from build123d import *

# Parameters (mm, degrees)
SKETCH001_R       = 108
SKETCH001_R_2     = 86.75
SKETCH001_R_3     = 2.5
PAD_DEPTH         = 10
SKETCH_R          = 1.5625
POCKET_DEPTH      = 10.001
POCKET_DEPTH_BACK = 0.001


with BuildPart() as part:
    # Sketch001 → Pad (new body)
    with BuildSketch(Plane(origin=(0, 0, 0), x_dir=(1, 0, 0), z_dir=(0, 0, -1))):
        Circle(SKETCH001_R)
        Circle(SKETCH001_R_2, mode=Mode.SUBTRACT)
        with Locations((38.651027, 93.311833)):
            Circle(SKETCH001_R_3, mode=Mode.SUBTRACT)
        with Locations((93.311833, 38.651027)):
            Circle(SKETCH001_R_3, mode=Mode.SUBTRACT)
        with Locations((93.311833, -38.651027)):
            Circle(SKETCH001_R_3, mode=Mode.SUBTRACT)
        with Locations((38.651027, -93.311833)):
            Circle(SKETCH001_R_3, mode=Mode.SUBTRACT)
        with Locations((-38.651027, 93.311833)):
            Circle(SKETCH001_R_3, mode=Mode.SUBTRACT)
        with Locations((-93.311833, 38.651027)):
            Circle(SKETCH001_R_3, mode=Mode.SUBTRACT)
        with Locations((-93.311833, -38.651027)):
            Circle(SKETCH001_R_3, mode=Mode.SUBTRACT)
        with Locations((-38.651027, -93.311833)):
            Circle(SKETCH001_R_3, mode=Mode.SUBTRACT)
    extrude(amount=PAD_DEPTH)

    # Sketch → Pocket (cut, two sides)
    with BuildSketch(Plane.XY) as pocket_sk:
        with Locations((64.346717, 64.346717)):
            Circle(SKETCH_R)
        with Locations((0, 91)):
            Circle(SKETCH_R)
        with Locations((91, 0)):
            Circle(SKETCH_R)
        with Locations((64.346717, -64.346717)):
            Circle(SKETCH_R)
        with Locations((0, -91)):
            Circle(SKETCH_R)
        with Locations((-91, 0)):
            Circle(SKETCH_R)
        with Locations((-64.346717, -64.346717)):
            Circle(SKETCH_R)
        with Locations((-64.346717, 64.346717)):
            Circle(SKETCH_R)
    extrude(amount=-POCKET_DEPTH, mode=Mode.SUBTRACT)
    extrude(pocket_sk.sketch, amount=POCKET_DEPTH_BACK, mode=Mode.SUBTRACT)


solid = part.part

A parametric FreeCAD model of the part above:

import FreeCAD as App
import Part
import Sketcher
from FreeCAD import Vector
Q = App.Units.Quantity

doc = App.newDocument("Part")
params = doc.addObject("Spreadsheet::Sheet", "Params")
for row, (alias, value) in enumerate([
    ("sketch1_diameter", "216 mm"),
    ("sketch1_diameter2", "5 mm"),
    ("sketch1_diameter3", "173.5 mm"),
    ("pad1_length", "10 mm"),
], start=1):
    params.set(f"A{row}", alias)
    params.set(f"B{row}", "=" + value)
    params.setAlias(f"B{row}", alias)

body = doc.addObject("PartDesign::Body", "Body")

sketch1 = body.newObject("Sketcher::SketchObject", "Sketch")
sketch1.AttachmentSupport = (doc.getObject("XY_Plane"), [""])
sketch1.MapMode = "FlatFace"
sketch1.addGeometry(Part.Circle(Vector(0, 0, 0), Vector(0, 0, 1), 108), False)
sketch1.addGeometry(Part.Circle(Vector(-38.651027, 93.311833, 0), Vector(0, 0, 1), 2.5), False)
sketch1.addGeometry(Part.Circle(Vector(-93.311833, 38.651027, 0), Vector(0, 0, 1), 2.5), False)
sketch1.addGeometry(Part.Circle(Vector(0, 0, 0), Vector(0, 0, 1), 86.75), False)
sketch1.addGeometry(Part.Circle(Vector(38.651027, 93.311833, 0), Vector(0, 0, 1), 2.5), False)
sketch1.addGeometry(Part.Circle(Vector(93.311833, 38.651027, 0), Vector(0, 0, 1), 2.5), False)
sketch1.addGeometry(Part.Circle(Vector(-93.311833, -38.651027, 0), Vector(0, 0, 1), 2.5), False)
sketch1.addGeometry(Part.Circle(Vector(-38.651027, -93.311833, 0), Vector(0, 0, 1), 2.5), False)
sketch1.addGeometry(Part.Circle(Vector(93.311833, -38.651027, 0), Vector(0, 0, 1), 2.5), False)
sketch1.addGeometry(Part.Circle(Vector(38.651027, -93.311833, 0), Vector(0, 0, 1), 2.5), False)
sketch1.addConstraint(Sketcher.Constraint("Coincident", 0, 3, -1, 1))
sketch1.addConstraint(Sketcher.Constraint("Coincident", 3, 3, -1, 1))
sketch1.addConstraint(Sketcher.Constraint("Equal", 1, 2))
sketch1.addConstraint(Sketcher.Constraint("Equal", 2, 4))
sketch1.addConstraint(Sketcher.Constraint("Equal", 4, 5))
sketch1.addConstraint(Sketcher.Constraint("Equal", 5, 6))
sketch1.addConstraint(Sketcher.Constraint("Equal", 6, 7))
sketch1.addConstraint(Sketcher.Constraint("Equal", 7, 8))
sketch1.addConstraint(Sketcher.Constraint("Equal", 8, 9))
sketch1.addConstraint(Sketcher.Constraint("Symmetric", 5, 3, 6, 3, -1, 1))
sketch1.addConstraint(Sketcher.Constraint("Symmetric", 4, 3, 7, 3, -1, 1))
sketch1.addConstraint(Sketcher.Constraint("Symmetric", 2, 3, 8, 3, -1, 1))
sketch1.addConstraint(Sketcher.Constraint("Symmetric", 1, 3, 9, 3, -1, 1))
sketch1.addConstraint(Sketcher.Constraint("Symmetric", 1, 3, 4, 3, -2))
sketch1.addConstraint(Sketcher.Constraint("Symmetric", 2, 3, 5, 3, -2))
sketch1.addConstraint(Sketcher.Constraint("Diameter", 0, Q("216 mm")))
sketch1.addConstraint(Sketcher.Constraint("Diameter", 1, Q("5 mm")))
sketch1.addConstraint(Sketcher.Constraint("Diameter", 3, Q("173.5 mm")))
sketch1.addConstraint(Sketcher.Constraint("DistanceX", 2, 3, 4, 3, Q("131.96286 mm")))
sketch1.addConstraint(Sketcher.Constraint("DistanceY", 6, 3, 1, 3, Q("131.96286 mm")))
sketch1.addConstraint(Sketcher.Constraint("DistanceX", 1, 3, -1, 1, Q("38.651027 mm")))
sketch1.addConstraint(Sketcher.Constraint("DistanceY", -1, 1, 1, 3, Q("93.311833 mm")))
sketch1.setExpression("Constraints[15]", "Params.sketch1_diameter")
sketch1.setExpression("Constraints[16]", "Params.sketch1_diameter2")
sketch1.setExpression("Constraints[17]", "Params.sketch1_diameter3")
pad1 = body.newObject("PartDesign::Pad", "Pad")
pad1.Profile = sketch1
pad1.setExpression("Length", "Params.pad1_length")
pad1.Reversed = True

sketch2 = body.newObject("Sketcher::SketchObject", "Sketch001")
sketch2.AttachmentSupport = (doc.getObject("XY_Plane"), [""])
sketch2.MapMode = "FlatFace"
sketch2.addGeometry(Part.Circle(Vector(64.346717, 64.346717, 0), Vector(0, 0, 1), 1.5625), False)
sketch2.addGeometry(Part.Circle(Vector(0, 91, 0), Vector(0, 0, 1), 1.5625), False)
sketch2.addGeometry(Part.Circle(Vector(91, 0, 0), Vector(0, 0, 1), 1.5625), False)
sketch2.addGeometry(Part.Circle(Vector(64.346717, -64.346717, 0), Vector(0, 0, 1), 1.5625), False)
sketch2.addGeometry(Part.Circle(Vector(0, -91, 0), Vector(0, 0, 1), 1.5625), False)
sketch2.addGeometry(Part.Circle(Vector(-91, 0, 0), Vector(0, 0, 1), 1.5625), False)
sketch2.addGeometry(Part.Circle(Vector(-64.346717, -64.346717, 0), Vector(0, 0, 1), 1.5625), False)
sketch2.addGeometry(Part.Circle(Vector(-64.346717, 64.346717, 0), Vector(0, 0, 1), 1.5625), False)
sketch2.addConstraint(Sketcher.Constraint("Equal", 0, 1))
sketch2.addConstraint(Sketcher.Constraint("Equal", 1, 2))
sketch2.addConstraint(Sketcher.Constraint("Equal", 2, 3))
sketch2.addConstraint(Sketcher.Constraint("Equal", 3, 4))
sketch2.addConstraint(Sketcher.Constraint("Equal", 4, 5))
sketch2.addConstraint(Sketcher.Constraint("Equal", 5, 6))
sketch2.addConstraint(Sketcher.Constraint("Equal", 6, 7))
sketch2.addConstraint(Sketcher.Constraint("Symmetric", 1, 3, 4, 3, -1, 1))
sketch2.addConstraint(Sketcher.Constraint("Symmetric", 2, 3, 5, 3, -1, 1))
sketch2.addConstraint(Sketcher.Constraint("Symmetric", 0, 3, 6, 3, -1, 1))
sketch2.addConstraint(Sketcher.Constraint("Symmetric", 3, 3, 7, 3, -1, 1))
sketch2.addConstraint(Sketcher.Constraint("Symmetric", 3, 3, 6, 3, -2))
sketch2.addConstraint(Sketcher.Constraint("PointOnObject", 1, 3, -2))
sketch2.addConstraint(Sketcher.Constraint("PointOnObject", 2, 3, -1))
sketch2.addConstraint(Sketcher.Constraint("Diameter", 0, Q("3.125 mm")))
sketch2.addConstraint(Sketcher.Constraint("DistanceY", -1, 1, 1, 3, Q("91 mm")))
sketch2.addConstraint(Sketcher.Constraint("DistanceX", -1, 1, 2, 3, Q("91 mm")))
sketch2.addConstraint(Sketcher.Constraint("DistanceX", -1, 1, 0, 3, Q("64.346717 mm")))
sketch2.addConstraint(Sketcher.Constraint("DistanceY", -1, 1, 0, 3, Q("64.346717 mm")))
pocket1 = body.newObject("PartDesign::Pocket", "Pocket")
pocket1.Profile = sketch2
pocket1.Type = "ThroughAll"
pocket1.Midplane = True

doc.recompute()
